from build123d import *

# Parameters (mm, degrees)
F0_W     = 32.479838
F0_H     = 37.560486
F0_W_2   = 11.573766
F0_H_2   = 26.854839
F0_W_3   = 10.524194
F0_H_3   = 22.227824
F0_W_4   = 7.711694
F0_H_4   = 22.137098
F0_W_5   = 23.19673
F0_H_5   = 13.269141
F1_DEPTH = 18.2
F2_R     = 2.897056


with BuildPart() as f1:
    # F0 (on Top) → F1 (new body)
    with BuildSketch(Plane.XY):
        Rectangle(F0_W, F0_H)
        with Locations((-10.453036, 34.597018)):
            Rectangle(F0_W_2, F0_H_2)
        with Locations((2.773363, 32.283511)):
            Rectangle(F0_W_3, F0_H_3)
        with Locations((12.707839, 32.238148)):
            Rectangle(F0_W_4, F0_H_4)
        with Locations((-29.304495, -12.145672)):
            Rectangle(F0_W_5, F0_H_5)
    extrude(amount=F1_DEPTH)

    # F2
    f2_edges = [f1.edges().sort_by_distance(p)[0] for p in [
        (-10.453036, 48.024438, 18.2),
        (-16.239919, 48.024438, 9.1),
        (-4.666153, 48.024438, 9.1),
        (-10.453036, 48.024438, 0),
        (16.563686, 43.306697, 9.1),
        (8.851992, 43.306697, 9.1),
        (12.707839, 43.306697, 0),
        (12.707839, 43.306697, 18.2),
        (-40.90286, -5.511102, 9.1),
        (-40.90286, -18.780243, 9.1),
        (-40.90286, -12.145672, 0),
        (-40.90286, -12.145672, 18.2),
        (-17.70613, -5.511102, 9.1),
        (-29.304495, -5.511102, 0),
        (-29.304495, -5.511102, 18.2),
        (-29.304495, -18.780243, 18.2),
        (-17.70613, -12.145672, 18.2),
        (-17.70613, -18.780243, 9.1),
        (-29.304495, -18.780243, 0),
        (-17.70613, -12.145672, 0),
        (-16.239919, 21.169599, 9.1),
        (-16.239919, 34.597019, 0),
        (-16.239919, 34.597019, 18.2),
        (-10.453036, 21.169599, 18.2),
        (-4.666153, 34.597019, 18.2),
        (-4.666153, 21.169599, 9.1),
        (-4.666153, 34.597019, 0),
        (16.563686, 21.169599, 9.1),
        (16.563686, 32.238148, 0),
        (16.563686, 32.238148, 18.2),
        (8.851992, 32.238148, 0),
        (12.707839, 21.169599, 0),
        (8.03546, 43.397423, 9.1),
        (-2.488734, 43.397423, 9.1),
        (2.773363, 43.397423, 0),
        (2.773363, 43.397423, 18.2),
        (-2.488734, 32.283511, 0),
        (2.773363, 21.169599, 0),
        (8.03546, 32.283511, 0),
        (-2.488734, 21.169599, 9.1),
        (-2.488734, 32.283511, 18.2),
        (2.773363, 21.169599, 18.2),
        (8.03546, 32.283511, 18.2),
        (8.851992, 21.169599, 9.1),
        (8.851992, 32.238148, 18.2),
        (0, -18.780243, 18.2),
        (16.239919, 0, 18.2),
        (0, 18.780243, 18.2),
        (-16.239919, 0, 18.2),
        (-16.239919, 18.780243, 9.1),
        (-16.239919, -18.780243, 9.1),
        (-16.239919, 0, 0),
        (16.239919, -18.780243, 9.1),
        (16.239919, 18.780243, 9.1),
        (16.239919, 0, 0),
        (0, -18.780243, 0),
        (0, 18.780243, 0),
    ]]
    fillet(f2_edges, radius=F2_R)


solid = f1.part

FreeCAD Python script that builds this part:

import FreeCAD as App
import Part
import Sketcher

V = App.Vector
Q = App.Units.Quantity


def edges_at(feature, points):
    """Names of the edges that pass closest to the given points."""
    edges = feature.Shape.Edges
    near = lambda p: min(range(len(edges)), key=lambda i: edges[i].distToShape(Part.Vertex(*p))[0])
    return sorted({f"Edge{near(p) + 1}" for p in points})


def add_polygon(sketch, points):
    """Adds a closed chain of lines whose ends are joined by coincident constraints."""
    first, n = sketch.GeometryCount, len(points)
    for a, b in zip(points, points[1:] + points[:1]):
        sketch.addGeometry(Part.LineSegment(App.Vector(*a, 0), App.Vector(*b, 0)), False)
    for i in range(n):
        sketch.addConstraint(Sketcher.Constraint("Coincident", first + i, 2, first + (i + 1) % n, 1))

doc = App.newDocument("Part")
body = doc.addObject("PartDesign::Body", "Body")
body.AllowCompound = True

sketch1 = body.newObject("Sketcher::SketchObject", "Sketch")
sketch1.AttachmentSupport = (doc.getObject("XY_Plane"), [""])
sketch1.MapMode = "FlatFace"
add_polygon(sketch1, [(-16, 19), (-16, -19), (16, -19), (16, 19)])
add_polygon(sketch1, [(-16, 48), (-16, 21), (-5, 21), (-5, 48)])
add_polygon(sketch1, [(-2, 43), (-2, 21), (8, 21), (8, 43)])
add_polygon(sketch1, [(9, 43), (9, 21), (17, 21), (17, 43)])
add_polygon(sketch1, [(-41, -6), (-41, -19), (-18, -19), (-18, -6)])
sketch1.addConstraint([
    Sketcher.Constraint("Vertical", 0),
    Sketcher.Constraint("Horizontal", 1),
    Sketcher.Constraint("Vertical", 2),
    Sketcher.Constraint("Horizontal", 3),
    Sketcher.Constraint("Vertical", 4),
    Sketcher.Constraint("Horizontal", 5),
    Sketcher.Constraint("Vertical", 6),
    Sketcher.Constraint("Horizontal", 7),
    Sketcher.Constraint("Vertical", 8),
    Sketcher.Constraint("Horizontal", 9),
    Sketcher.Constraint("Vertical", 10),
    Sketcher.Constraint("Horizontal", 11),
    Sketcher.Constraint("Vertical", 12),
    Sketcher.Constraint("Horizontal", 13),
    Sketcher.Constraint("Vertical", 14),
    Sketcher.Constraint("Horizontal", 15),
    Sketcher.Constraint("Vertical", 16),
    Sketcher.Constraint("Horizontal", 17),
    Sketcher.Constraint("Vertical", 18),
    Sketcher.Constraint("Horizontal", 19),
    Sketcher.Constraint("Symmetric", 0, 2, 2, 2, -1, 1),
    Sketcher.Constraint("Horizontal", 5, 2, 8, 2),
    Sketcher.Constraint("Horizontal", 9, 2, 12, 2),
    Sketcher.Constraint("Horizontal", 1, 2, 16, 2),
    Sketcher.Constraint("Vertical", 3, 2, 4, 2),
    Sketcher.Constraint("DistanceX", 17, 1, 17, 2, Q("23.19673 mm")),
    Sketcher.Constraint("DistanceY", 4, 2, 4, 1, Q("26.854839 mm")),
    Sketcher.Constraint("DistanceY", 16, 2, 16, 1, Q("13.269141 mm")),
    Sketcher.Constraint("DistanceY", -1, 1, 4, 2, Q("21.169598 mm")),
    Sketcher.Constraint("DistanceY", 18, 2, -1, 1, Q("5.511101 mm")),
    Sketcher.Constraint("DistanceX", 1, 1, 1, 2, Q("32.479838 mm")),
    Sketcher.Constraint("DistanceX", 5, 1, 5, 2, Q("11.573766 mm")),
    Sketcher.Constraint("DistanceX", 9, 1, 9, 2, Q("10.524194 mm")),
    Sketcher.Constraint("DistanceX", 13, 1, 13, 2, Q("7.711694 mm")),
    Sketcher.Constraint("DistanceY", 8, 2, 8, 1, Q("22.227824 mm")),
    Sketcher.Constraint("DistanceY", 12, 2, 12, 1, Q("22.137098 mm")),
    Sketcher.Constraint("DistanceX", -1, 1, 9, 2, Q("8.03546 mm")),
    Sketcher.Constraint("DistanceX", -1, 1, 12, 2, Q("8.851992 mm")),
    Sketcher.Constraint("DistanceX", 16, 2, -1, 1, Q("40.90286 mm")),
])
pad1 = body.newObject("PartDesign::Pad", "Pad")
pad1.Profile = sketch1
pad1.Length = 18.2
doc.recompute()

fillet = body.newObject("PartDesign::Fillet", "Fillet")
fillet.Base = (pad1, edges_at(pad1, [
    (-10.453, 48.024, 18.2),
    (-16.24, 48.024, 9.1),
    (-4.666, 48.024, 9.1),
    (-10.453, 48.024, 0),
    (16.564, 43.307, 9.1),
    (8.852, 43.307, 9.1),
    (12.708, 43.307, 0),
    (12.708, 43.307, 18.2),
    (-40.903, -5.511, 9.1),
    (-40.903, -18.78, 9.1),
    (-40.903, -12.146, 0),
    (-40.903, -12.146, 18.2),
    (-17.706, -5.511, 9.1),
    (-29.304, -5.511, 0),
    (-29.304, -5.511, 18.2),
    (-29.304, -18.78, 18.2),
    (-17.706, -12.146, 18.2),
    (-17.706, -18.78, 9.1),
    (-29.304, -18.78, 0),
    (-17.706, -12.146, 0),
    (-16.24, 21.17, 9.1),
    (-16.24, 34.597, 0),
    (-16.24, 34.597, 18.2),
    (-10.453, 21.17, 18.2),
    (-4.666, 34.597, 18.2),
    (-4.666, 21.17, 9.1),
    (-4.666, 34.597, 0),
    (16.564, 21.17, 9.1),
    (16.564, 32.238, 0),
    (16.564, 32.238, 18.2),
    (8.852, 32.238, 0),
    (12.708, 21.17, 0),
    (8.035, 43.397, 9.1),
    (-2.489, 43.397, 9.1),
    (2.773, 43.397, 0),
    (2.773, 43.397, 18.2),
    (-2.489, 32.284, 0),
    (2.773, 21.17, 0),
    (8.035, 32.284, 0),
    (-2.489, 21.17, 9.1),
    (-2.489, 32.284, 18.2),
    (2.773, 21.17, 18.2),
    (8.035, 32.284, 18.2),
    (8.852, 21.17, 9.1),
    (8.852, 32.238, 18.2),
    (0, -18.78, 18.2),
    (16.24, 0, 18.2),
    (0, 18.78, 18.2),
    (-16.24, 0, 18.2),
    (-16.24, 18.78, 9.1),
    (-16.24, -18.78, 9.1),
    (-16.24, 0, 0),
    (16.24, -18.78, 9.1),
    (16.24, 18.78, 9.1),
    (16.24, 0, 0),
    (0, -18.78, 0),
    (0, 18.78, 0),
]))
fillet.Radius = 2.897056

doc.recompute()
